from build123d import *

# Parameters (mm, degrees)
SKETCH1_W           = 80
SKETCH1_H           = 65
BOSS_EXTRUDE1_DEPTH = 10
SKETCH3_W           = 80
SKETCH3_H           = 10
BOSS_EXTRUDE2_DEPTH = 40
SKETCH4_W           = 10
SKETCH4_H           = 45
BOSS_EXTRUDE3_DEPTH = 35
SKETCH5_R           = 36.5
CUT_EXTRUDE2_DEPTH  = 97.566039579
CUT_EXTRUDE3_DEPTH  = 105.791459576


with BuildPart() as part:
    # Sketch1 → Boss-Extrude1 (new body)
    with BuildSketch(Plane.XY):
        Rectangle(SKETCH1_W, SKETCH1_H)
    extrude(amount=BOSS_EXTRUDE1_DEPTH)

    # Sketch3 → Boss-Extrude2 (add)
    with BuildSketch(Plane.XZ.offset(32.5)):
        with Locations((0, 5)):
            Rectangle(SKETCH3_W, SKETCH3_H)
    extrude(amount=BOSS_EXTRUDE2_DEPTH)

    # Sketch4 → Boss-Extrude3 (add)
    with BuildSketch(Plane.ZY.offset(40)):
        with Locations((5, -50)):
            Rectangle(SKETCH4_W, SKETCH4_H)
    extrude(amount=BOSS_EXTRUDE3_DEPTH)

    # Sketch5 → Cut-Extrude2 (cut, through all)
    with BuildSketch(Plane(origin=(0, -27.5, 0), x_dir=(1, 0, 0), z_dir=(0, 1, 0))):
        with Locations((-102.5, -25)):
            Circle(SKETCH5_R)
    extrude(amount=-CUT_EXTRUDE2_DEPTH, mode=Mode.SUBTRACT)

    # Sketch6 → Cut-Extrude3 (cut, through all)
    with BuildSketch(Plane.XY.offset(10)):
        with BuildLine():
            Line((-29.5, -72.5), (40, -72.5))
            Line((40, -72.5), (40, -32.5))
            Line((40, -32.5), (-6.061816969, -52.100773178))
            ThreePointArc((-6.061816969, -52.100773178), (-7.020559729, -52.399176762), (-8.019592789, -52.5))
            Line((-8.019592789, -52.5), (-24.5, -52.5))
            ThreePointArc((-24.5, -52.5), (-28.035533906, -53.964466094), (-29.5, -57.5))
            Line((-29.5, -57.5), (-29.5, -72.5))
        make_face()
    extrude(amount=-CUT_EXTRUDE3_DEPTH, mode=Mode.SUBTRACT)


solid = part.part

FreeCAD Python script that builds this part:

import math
import FreeCAD as App
import Part
import Sketcher

doc = App.newDocument("Part")
body = doc.addObject("PartDesign::Body", "Body")

# Sketch on XY plane
sketch1 = doc.addObject("Sketcher::SketchObject", "Sketch")
body.addObject(sketch1)
sketch1.AttachmentSupport = (doc.XY_Plane, [""])
sketch1.MapMode = "FlatFace"
sketch1.addGeometry(Part.LineSegment(App.Vector(-40, 32, 0), App.Vector(-40, -32, 0)), False)
sketch1.addGeometry(Part.LineSegment(App.Vector(-40, -32, 0), App.Vector(40, -32, 0)), False)
sketch1.addGeometry(Part.LineSegment(App.Vector(40, -32, 0), App.Vector(40, 32, 0)), False)
sketch1.addGeometry(Part.LineSegment(App.Vector(40, 32, 0), App.Vector(-40, 32, 0)), False)
sketch1.addConstraint(Sketcher.Constraint("Coincident", 0, 2, 1, 1))
sketch1.addConstraint(Sketcher.Constraint("Coincident", 1, 2, 2, 1))
sketch1.addConstraint(Sketcher.Constraint("Coincident", 2, 2, 3, 1))
sketch1.addConstraint(Sketcher.Constraint("Coincident", 3, 2, 0, 1))
sketch1.addConstraint(Sketcher.Constraint("Vertical", 0))
sketch1.addConstraint(Sketcher.Constraint("Horizontal", 1))
sketch1.addConstraint(Sketcher.Constraint("Vertical", 2))
sketch1.addConstraint(Sketcher.Constraint("Horizontal", 3))
sketch1.addConstraint(Sketcher.Constraint("Symmetric", 0, 2, 2, 2, -1, 1))
sketch1.addConstraint(Sketcher.Constraint("DistanceX", 1, 1, 1, 2, 80.0))
sketch1.addConstraint(Sketcher.Constraint("DistanceY", 0, 2, 0, 1, 65.0))
pad1 = doc.addObject("PartDesign::Pad", "Pad")
body.addObject(pad1)
pad1.Profile = sketch1
pad1.Length = 10

# Sketch on XZ plane
sketch2 = doc.addObject("Sketcher::SketchObject", "Sketch001")
body.addObject(sketch2)
sketch2.AttachmentSupport = (doc.XZ_Plane, [""])
sketch2.MapMode = "FlatFace"
sketch2.AttachmentOffset = App.Placement(App.Vector(0, 0, 32.5), App.Rotation())
sketch2.addGeometry(Part.LineSegment(App.Vector(-40, 10, 0), App.Vector(-40, 0, 0)), False)
sketch2.addGeometry(Part.LineSegment(App.Vector(-40, 0, 0), App.Vector(40, 0, 0)), False)
sketch2.addGeometry(Part.LineSegment(App.Vector(40, 0, 0), App.Vector(40, 10, 0)), False)
sketch2.addGeometry(Part.LineSegment(App.Vector(40, 10, 0), App.Vector(-40, 10, 0)), False)
sketch2.addConstraint(Sketcher.Constraint("Coincident", 0, 2, 1, 1))
sketch2.addConstraint(Sketcher.Constraint("Coincident", 1, 2, 2, 1))
sketch2.addConstraint(Sketcher.Constraint("Coincident", 2, 2, 3, 1))
sketch2.addConstraint(Sketcher.Constraint("Coincident", 3, 2, 0, 1))
sketch2.addConstraint(Sketcher.Constraint("Vertical", 0))
sketch2.addConstraint(Sketcher.Constraint("Horizontal", 1))
sketch2.addConstraint(Sketcher.Constraint("Vertical", 2))
sketch2.addConstraint(Sketcher.Constraint("Horizontal", 3))
sketch2.addConstraint(Sketcher.Constraint("Symmetric", 0, 2, 1, 2, -1, 1))
sketch2.addConstraint(Sketcher.Constraint("DistanceX", 1, 1, 1, 2, 80.0))
sketch2.addConstraint(Sketcher.Constraint("DistanceY", 0, 2, 0, 1, 10.0))
pad2 = doc.addObject("PartDesign::Pad", "Pad001")
body.addObject(pad2)
pad2.Profile = sketch2
pad2.Length = 40

# Sketch on YZ plane
sketch3 = doc.addObject("Sketcher::SketchObject", "Sketch002")
body.addObject(sketch3)
sketch3.AttachmentSupport = (doc.YZ_Plane, [""])
sketch3.MapMode = "FlatFace"
sketch3.AttachmentOffset = App.Placement(App.Vector(0, 0, -40), App.Rotation())
sketch3.addGeometry(Part.LineSegment(App.Vector(-28, 0, 0), App.Vector(-72, 0, 0)), False)
sketch3.addGeometry(Part.LineSegment(App.Vector(-72, 0, 0), App.Vector(-72, 10, 0)), False)
sketch3.addGeometry(Part.LineSegment(App.Vector(-72, 10, 0), App.Vector(-28, 10, 0)), False)
sketch3.addGeometry(Part.LineSegment(App.Vector(-28, 10, 0), App.Vector(-28, 0, 0)), False)
sketch3.addConstraint(Sketcher.Constraint("Coincident", 0, 2, 1, 1))
sketch3.addConstraint(Sketcher.Constraint("Coincident", 1, 2, 2, 1))
sketch3.addConstraint(Sketcher.Constraint("Coincident", 2, 2, 3, 1))
sketch3.addConstraint(Sketcher.Constraint("Coincident", 3, 2, 0, 1))
sketch3.addConstraint(Sketcher.Constraint("Horizontal", 0))
sketch3.addConstraint(Sketcher.Constraint("Vertical", 1))
sketch3.addConstraint(Sketcher.Constraint("Horizontal", 2))
sketch3.addConstraint(Sketcher.Constraint("Vertical", 3))
sketch3.addConstraint(Sketcher.Constraint("PointOnObject", 0, 2, -1))
sketch3.addConstraint(Sketcher.Constraint("DistanceX", 0, 2, 0, 1, 45.0))
sketch3.addConstraint(Sketcher.Constraint("DistanceY", 1, 1, 1, 2, 10.0))
sketch3.addConstraint(Sketcher.Constraint("DistanceX", 0, 2, -1, 1, 72.5))
pad3 = doc.addObject("PartDesign::Pad", "Pad002")
body.addObject(pad3)
pad3.Profile = sketch3
pad3.Length = 35
pad3.Reversed = True

# Sketch on XZ plane
sketch4 = doc.addObject("Sketcher::SketchObject", "Sketch003")
body.addObject(sketch4)
sketch4.AttachmentSupport = (doc.XZ_Plane, [""])
sketch4.MapMode = "FlatFace"
sketch4.AttachmentOffset = App.Placement(App.Vector(0, 0, 27.5), App.Rotation())
sketch4.addGeometry(Part.Circle(App.Vector(-102, 25, 0), App.Vector(0, 0, 1), 36), False)
sketch4.addConstraint(Sketcher.Constraint("Diameter", 0, 73.0))
sketch4.addConstraint(Sketcher.Constraint("DistanceY", -1, 1, 0, 3, 25.0))
sketch4.addConstraint(Sketcher.Constraint("DistanceX", 0, 3, -1, 1, 102.5))
pocket1 = doc.addObject("PartDesign::Pocket", "Pocket")
body.addObject(pocket1)
pocket1.Profile = sketch4
pocket1.Type = "ThroughAll"
pocket1.Reversed = True

# Sketch on XY plane
sketch5 = doc.addObject("Sketcher::SketchObject", "Sketch004")
body.addObject(sketch5)
sketch5.AttachmentSupport = (doc.XY_Plane, [""])
sketch5.MapMode = "FlatFace"
sketch5.AttachmentOffset = App.Placement(App.Vector(0, 0, 10), App.Rotation())
sketch5.addGeometry(Part.LineSegment(App.Vector(-29.5, -72.5, 0), App.Vector(40, -72.5, 0)), False)
sketch5.addGeometry(Part.LineSegment(App.Vector(40, -72.5, 0), App.Vector(40, -32.5, 0)), False)
sketch5.addGeometry(Part.LineSegment(App.Vector(40, -32.5, 0), App.Vector(-6.1, -52.1, 0)), False)
sketch5.addGeometry(Part.ArcOfCircle(Part.Circle(App.Vector(-8, -47.5, 0), App.Vector(0, 0, 1), 5), math.radians(-90), math.radians(-67)), False)
sketch5.addGeometry(Part.LineSegment(App.Vector(-8, -52.5, 0), App.Vector(-24.5, -52.5, 0)), False)
sketch5.addGeometry(Part.ArcOfCircle(Part.Circle(App.Vector(-24.5, -57.5, 0), App.Vector(0, 0, 1), 5), math.radians(90), math.radians(180)), False)
sketch5.addGeometry(Part.LineSegment(App.Vector(-29.5, -57.5, 0), App.Vector(-29.5, -72.5, 0)), False)
sketch5.addConstraint(Sketcher.Constraint("Coincident", 0, 2, 1, 1))
sketch5.addConstraint(Sketcher.Constraint("Coincident", 1, 2, 2, 1))
sketch5.addConstraint(Sketcher.Constraint("Tangent", 2, 2, 3, 2))
sketch5.addConstraint(Sketcher.Constraint("Tangent", 3, 1, 4, 1))
sketch5.addConstraint(Sketcher.Constraint("Tangent", 4, 2, 5, 1))
sketch5.addConstraint(Sketcher.Constraint("Tangent", 5, 2, 6, 1))
sketch5.addConstraint(Sketcher.Constraint("Coincident", 6, 2, 0, 1))
sketch5.addConstraint(Sketcher.Constraint("Horizontal", 0))
sketch5.addConstraint(Sketcher.Constraint("Vertical", 1))
sketch5.addConstraint(Sketcher.Constraint("Horizontal", 4))
sketch5.addConstraint(Sketcher.Constraint("Vertical", 6))
sketch5.addConstraint(Sketcher.Constraint("Equal", 3, 5))
sketch5.addConstraint(Sketcher.Constraint("Radius", 3, 5.0))
sketch5.addConstraint(Sketcher.Constraint("DistanceY", 1, 1, 1, 2, 40.0))
sketch5.addConstraint(Sketcher.Constraint("DistanceY", 6, 2, 6, 1, 15.0))
sketch5.addConstraint(Sketcher.Constraint("DistanceX", 0, 1, 0, 2, 69.5))
sketch5.addConstraint(Sketcher.Constraint("DistanceX", -1, 1, 0, 2, 40.0))
sketch5.addConstraint(Sketcher.Constraint("DistanceY", 3, 3, -1, 1, 47.5))
sketch5.addConstraint(Sketcher.Constraint("Distance", 2, 50.058778))
pocket2 = doc.addObject("PartDesign::Pocket", "Pocket001")
body.addObject(pocket2)
pocket2.Profile = sketch5
pocket2.Type = "ThroughAll"

doc.recompute()
